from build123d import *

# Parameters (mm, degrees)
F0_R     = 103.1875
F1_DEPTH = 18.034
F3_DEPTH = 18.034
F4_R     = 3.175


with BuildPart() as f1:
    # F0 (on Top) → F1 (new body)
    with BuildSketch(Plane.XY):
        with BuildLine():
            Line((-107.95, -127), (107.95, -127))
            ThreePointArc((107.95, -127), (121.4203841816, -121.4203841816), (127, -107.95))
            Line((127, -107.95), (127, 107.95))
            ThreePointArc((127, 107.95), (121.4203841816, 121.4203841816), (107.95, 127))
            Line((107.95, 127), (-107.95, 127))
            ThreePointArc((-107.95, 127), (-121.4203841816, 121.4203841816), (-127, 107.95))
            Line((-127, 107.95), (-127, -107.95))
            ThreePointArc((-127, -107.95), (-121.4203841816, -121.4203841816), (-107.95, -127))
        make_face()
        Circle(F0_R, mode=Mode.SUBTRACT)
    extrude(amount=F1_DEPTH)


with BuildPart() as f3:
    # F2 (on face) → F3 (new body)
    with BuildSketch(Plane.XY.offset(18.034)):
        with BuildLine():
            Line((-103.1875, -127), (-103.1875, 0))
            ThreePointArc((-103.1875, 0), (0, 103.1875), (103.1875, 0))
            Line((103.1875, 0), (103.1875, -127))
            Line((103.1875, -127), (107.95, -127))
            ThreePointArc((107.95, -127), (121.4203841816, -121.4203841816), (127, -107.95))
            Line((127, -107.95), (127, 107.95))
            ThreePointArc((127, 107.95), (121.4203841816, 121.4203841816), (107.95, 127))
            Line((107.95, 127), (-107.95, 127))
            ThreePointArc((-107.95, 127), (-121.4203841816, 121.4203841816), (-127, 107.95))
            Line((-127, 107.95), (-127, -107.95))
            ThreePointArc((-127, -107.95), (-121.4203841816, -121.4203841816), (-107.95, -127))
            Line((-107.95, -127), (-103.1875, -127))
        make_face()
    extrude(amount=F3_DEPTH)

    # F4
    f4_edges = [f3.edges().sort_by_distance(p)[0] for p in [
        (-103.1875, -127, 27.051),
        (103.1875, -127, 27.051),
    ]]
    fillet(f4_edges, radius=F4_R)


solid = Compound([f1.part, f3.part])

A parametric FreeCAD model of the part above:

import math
import FreeCAD as App
import Part
import Sketcher

V = App.Vector
Q = App.Units.Quantity


def edges_at(feature, points):
    """Names of the edges that pass closest to the given points."""
    edges = feature.Shape.Edges
    near = lambda p: min(range(len(edges)), key=lambda i: edges[i].distToShape(Part.Vertex(*p))[0])
    return sorted({f"Edge{near(p) + 1}" for p in points})

doc = App.newDocument("Part")
body = doc.addObject("PartDesign::Body", "Body")

sketch1 = body.newObject("Sketcher::SketchObject", "Sketch")
sketch1.AttachmentSupport = (doc.getObject("XY_Plane"), [""])
sketch1.MapMode = "FlatFace"
sketch1.addGeometry([
    Part.LineSegment(V(-108, -127, 0), V(108, -127, 0)),
    Part.ArcOfCircle(Part.Circle(V(108, -108, 0), V(0, 0, 1), 19), math.radians(-90), math.radians(0)),
    Part.LineSegment(V(127, -108, 0), V(127, 108, 0)),
    Part.ArcOfCircle(Part.Circle(V(108, 108, 0), V(0, 0, 1), 19), math.radians(0), math.radians(90)),
    Part.LineSegment(V(108, 127, 0), V(-108, 127, 0)),
    Part.ArcOfCircle(Part.Circle(V(-108, 108, 0), V(0, 0, 1), 19), math.radians(90), math.radians(180)),
    Part.LineSegment(V(-127, 108, 0), V(-127, -108, 0)),
    Part.ArcOfCircle(Part.Circle(V(-108, -108, 0), V(0, 0, 1), 19), math.radians(180), math.radians(270)),
    Part.Circle(V(0, 0, 0), V(0, 0, 1), 103),
], False)
sketch1.addConstraint([
    Sketcher.Constraint("Tangent", 0, 2, 1, 1),
    Sketcher.Constraint("Tangent", 1, 2, 2, 1),
    Sketcher.Constraint("Tangent", 2, 2, 3, 1),
    Sketcher.Constraint("Tangent", 3, 2, 4, 1),
    Sketcher.Constraint("Tangent", 4, 2, 5, 1),
    Sketcher.Constraint("Tangent", 5, 2, 6, 1),
    Sketcher.Constraint("Tangent", 6, 2, 7, 1),
    Sketcher.Constraint("Tangent", 7, 2, 0, 1),
    Sketcher.Constraint("Horizontal", 0),
    Sketcher.Constraint("Vertical", 2),
    Sketcher.Constraint("Horizontal", 4),
    Sketcher.Constraint("Vertical", 6),
    Sketcher.Constraint("Coincident", 8, 3, -1, 1),
    Sketcher.Constraint("Equal", 1, 3),
    Sketcher.Constraint("Equal", 3, 5),
    Sketcher.Constraint("Equal", 5, 7),
    Sketcher.Constraint("Symmetric", 1, 3, 5, 3, -1, 1),
    Sketcher.Constraint("Equal", 4, 2),
    Sketcher.Constraint("Radius", 1, Q("0.75 in")),
    Sketcher.Constraint("Diameter", 8, Q("8.125 in")),
    Sketcher.Constraint("DistanceX", 0, 1, 0, 2, Q("8.5 in")),
])
pad1 = body.newObject("PartDesign::Pad", "Pad")
pad1.Profile = sketch1
pad1.Length = Q("0.71 in")
body2 = doc.addObject("PartDesign::Body", "Body001")

sketch2 = body2.newObject("Sketcher::SketchObject", "Sketch001")
sketch2.AttachmentSupport = (doc.getObject("XY_Plane001"), [""])
sketch2.MapMode = "FlatFace"
sketch2.AttachmentOffset = App.Placement(V(0, 0, 0.71 * 25.4), App.Rotation())
sketch2.addGeometry([
    Part.LineSegment(V(-103.2, -127, 0), V(-103.2, 0, 0)),
    Part.ArcOfCircle(Part.Circle(V(0, 0, 0), V(0, 0, 1), 103.2), math.radians(0), math.radians(180)),
    Part.LineSegment(V(103.2, 0, 0), V(103.2, -127, 0)),
    Part.LineSegment(V(103.2, -127, 0), V(108, -127, 0)),
    Part.ArcOfCircle(Part.Circle(V(108, -108, 0), V(0, 0, 1), 19.1), math.radians(-90), math.radians(0)),
    Part.LineSegment(V(127, -108, 0), V(127, 108, 0)),
    Part.ArcOfCircle(Part.Circle(V(108, 108, 0), V(0, 0, 1), 19.1), math.radians(0), math.radians(90)),
    Part.LineSegment(V(108, 127, 0), V(-108, 127, 0)),
    Part.ArcOfCircle(Part.Circle(V(-108, 108, 0), V(0, 0, 1), 19.1), math.radians(90), math.radians(180)),
    Part.LineSegment(V(-127, 108, 0), V(-127, -108, 0)),
    Part.ArcOfCircle(Part.Circle(V(-108, -108, 0), V(0, 0, 1), 19.1), math.radians(180), math.radians(270)),
    Part.LineSegment(V(-108, -127, 0), V(-103.2, -127, 0)),
], False)
sketch2.addConstraint([
    Sketcher.Constraint("Tangent", 0, 2, 1, 2),
    Sketcher.Constraint("Tangent", 1, 1, 2, 1),
    Sketcher.Constraint("Coincident", 2, 2, 3, 1),
    Sketcher.Constraint("Tangent", 3, 2, 4, 1),
    Sketcher.Constraint("Tangent", 4, 2, 5, 1),
    Sketcher.Constraint("Tangent", 5, 2, 6, 1),
    Sketcher.Constraint("Tangent", 6, 2, 7, 1),
    Sketcher.Constraint("Tangent", 7, 2, 8, 1),
    Sketcher.Constraint("Tangent", 8, 2, 9, 1),
    Sketcher.Constraint("Tangent", 9, 2, 10, 1),
    Sketcher.Constraint("Tangent", 10, 2, 11, 1),
    Sketcher.Constraint("Coincident", 11, 2, 0, 1),
    Sketcher.Constraint("Vertical", 0),
    Sketcher.Constraint("Vertical", 2),
    Sketcher.Constraint("Horizontal", 3),
    Sketcher.Constraint("Vertical", 5),
    Sketcher.Constraint("Horizontal", 7),
    Sketcher.Constraint("Vertical", 9),
    Sketcher.Constraint("Horizontal", 11),
    Sketcher.Constraint("Coincident", 1, 3, -1, 1),
    Sketcher.Constraint("Equal", 4, 6),
    Sketcher.Constraint("Equal", 6, 8),
    Sketcher.Constraint("Equal", 8, 10),
    Sketcher.Constraint("Symmetric", 4, 3, 8, 3, -1, 1),
    Sketcher.Constraint("Horizontal", 4, 3, 10, 3),
    Sketcher.Constraint("Equal", 7, 5),
    Sketcher.Constraint("DistanceY", 0, 1, 0, 2, Q("5 in")),
    Sketcher.Constraint("Radius", 4, Q("0.75 in")),
    Sketcher.Constraint("Radius", 1, Q("4.0625 in")),
])
pad2 = body2.newObject("PartDesign::Pad", "Pad001")
pad2.Profile = sketch2
pad2.Length = Q("0.71 in")
doc.recompute()

fillet = body2.newObject("PartDesign::Fillet", "Fillet")
fillet.Base = (pad2, edges_at(pad2, [(-103.188, -127, 27.051), (103.188, -127, 27.051)]))
fillet.Radius = Q("0.125 in")

doc.recompute()
